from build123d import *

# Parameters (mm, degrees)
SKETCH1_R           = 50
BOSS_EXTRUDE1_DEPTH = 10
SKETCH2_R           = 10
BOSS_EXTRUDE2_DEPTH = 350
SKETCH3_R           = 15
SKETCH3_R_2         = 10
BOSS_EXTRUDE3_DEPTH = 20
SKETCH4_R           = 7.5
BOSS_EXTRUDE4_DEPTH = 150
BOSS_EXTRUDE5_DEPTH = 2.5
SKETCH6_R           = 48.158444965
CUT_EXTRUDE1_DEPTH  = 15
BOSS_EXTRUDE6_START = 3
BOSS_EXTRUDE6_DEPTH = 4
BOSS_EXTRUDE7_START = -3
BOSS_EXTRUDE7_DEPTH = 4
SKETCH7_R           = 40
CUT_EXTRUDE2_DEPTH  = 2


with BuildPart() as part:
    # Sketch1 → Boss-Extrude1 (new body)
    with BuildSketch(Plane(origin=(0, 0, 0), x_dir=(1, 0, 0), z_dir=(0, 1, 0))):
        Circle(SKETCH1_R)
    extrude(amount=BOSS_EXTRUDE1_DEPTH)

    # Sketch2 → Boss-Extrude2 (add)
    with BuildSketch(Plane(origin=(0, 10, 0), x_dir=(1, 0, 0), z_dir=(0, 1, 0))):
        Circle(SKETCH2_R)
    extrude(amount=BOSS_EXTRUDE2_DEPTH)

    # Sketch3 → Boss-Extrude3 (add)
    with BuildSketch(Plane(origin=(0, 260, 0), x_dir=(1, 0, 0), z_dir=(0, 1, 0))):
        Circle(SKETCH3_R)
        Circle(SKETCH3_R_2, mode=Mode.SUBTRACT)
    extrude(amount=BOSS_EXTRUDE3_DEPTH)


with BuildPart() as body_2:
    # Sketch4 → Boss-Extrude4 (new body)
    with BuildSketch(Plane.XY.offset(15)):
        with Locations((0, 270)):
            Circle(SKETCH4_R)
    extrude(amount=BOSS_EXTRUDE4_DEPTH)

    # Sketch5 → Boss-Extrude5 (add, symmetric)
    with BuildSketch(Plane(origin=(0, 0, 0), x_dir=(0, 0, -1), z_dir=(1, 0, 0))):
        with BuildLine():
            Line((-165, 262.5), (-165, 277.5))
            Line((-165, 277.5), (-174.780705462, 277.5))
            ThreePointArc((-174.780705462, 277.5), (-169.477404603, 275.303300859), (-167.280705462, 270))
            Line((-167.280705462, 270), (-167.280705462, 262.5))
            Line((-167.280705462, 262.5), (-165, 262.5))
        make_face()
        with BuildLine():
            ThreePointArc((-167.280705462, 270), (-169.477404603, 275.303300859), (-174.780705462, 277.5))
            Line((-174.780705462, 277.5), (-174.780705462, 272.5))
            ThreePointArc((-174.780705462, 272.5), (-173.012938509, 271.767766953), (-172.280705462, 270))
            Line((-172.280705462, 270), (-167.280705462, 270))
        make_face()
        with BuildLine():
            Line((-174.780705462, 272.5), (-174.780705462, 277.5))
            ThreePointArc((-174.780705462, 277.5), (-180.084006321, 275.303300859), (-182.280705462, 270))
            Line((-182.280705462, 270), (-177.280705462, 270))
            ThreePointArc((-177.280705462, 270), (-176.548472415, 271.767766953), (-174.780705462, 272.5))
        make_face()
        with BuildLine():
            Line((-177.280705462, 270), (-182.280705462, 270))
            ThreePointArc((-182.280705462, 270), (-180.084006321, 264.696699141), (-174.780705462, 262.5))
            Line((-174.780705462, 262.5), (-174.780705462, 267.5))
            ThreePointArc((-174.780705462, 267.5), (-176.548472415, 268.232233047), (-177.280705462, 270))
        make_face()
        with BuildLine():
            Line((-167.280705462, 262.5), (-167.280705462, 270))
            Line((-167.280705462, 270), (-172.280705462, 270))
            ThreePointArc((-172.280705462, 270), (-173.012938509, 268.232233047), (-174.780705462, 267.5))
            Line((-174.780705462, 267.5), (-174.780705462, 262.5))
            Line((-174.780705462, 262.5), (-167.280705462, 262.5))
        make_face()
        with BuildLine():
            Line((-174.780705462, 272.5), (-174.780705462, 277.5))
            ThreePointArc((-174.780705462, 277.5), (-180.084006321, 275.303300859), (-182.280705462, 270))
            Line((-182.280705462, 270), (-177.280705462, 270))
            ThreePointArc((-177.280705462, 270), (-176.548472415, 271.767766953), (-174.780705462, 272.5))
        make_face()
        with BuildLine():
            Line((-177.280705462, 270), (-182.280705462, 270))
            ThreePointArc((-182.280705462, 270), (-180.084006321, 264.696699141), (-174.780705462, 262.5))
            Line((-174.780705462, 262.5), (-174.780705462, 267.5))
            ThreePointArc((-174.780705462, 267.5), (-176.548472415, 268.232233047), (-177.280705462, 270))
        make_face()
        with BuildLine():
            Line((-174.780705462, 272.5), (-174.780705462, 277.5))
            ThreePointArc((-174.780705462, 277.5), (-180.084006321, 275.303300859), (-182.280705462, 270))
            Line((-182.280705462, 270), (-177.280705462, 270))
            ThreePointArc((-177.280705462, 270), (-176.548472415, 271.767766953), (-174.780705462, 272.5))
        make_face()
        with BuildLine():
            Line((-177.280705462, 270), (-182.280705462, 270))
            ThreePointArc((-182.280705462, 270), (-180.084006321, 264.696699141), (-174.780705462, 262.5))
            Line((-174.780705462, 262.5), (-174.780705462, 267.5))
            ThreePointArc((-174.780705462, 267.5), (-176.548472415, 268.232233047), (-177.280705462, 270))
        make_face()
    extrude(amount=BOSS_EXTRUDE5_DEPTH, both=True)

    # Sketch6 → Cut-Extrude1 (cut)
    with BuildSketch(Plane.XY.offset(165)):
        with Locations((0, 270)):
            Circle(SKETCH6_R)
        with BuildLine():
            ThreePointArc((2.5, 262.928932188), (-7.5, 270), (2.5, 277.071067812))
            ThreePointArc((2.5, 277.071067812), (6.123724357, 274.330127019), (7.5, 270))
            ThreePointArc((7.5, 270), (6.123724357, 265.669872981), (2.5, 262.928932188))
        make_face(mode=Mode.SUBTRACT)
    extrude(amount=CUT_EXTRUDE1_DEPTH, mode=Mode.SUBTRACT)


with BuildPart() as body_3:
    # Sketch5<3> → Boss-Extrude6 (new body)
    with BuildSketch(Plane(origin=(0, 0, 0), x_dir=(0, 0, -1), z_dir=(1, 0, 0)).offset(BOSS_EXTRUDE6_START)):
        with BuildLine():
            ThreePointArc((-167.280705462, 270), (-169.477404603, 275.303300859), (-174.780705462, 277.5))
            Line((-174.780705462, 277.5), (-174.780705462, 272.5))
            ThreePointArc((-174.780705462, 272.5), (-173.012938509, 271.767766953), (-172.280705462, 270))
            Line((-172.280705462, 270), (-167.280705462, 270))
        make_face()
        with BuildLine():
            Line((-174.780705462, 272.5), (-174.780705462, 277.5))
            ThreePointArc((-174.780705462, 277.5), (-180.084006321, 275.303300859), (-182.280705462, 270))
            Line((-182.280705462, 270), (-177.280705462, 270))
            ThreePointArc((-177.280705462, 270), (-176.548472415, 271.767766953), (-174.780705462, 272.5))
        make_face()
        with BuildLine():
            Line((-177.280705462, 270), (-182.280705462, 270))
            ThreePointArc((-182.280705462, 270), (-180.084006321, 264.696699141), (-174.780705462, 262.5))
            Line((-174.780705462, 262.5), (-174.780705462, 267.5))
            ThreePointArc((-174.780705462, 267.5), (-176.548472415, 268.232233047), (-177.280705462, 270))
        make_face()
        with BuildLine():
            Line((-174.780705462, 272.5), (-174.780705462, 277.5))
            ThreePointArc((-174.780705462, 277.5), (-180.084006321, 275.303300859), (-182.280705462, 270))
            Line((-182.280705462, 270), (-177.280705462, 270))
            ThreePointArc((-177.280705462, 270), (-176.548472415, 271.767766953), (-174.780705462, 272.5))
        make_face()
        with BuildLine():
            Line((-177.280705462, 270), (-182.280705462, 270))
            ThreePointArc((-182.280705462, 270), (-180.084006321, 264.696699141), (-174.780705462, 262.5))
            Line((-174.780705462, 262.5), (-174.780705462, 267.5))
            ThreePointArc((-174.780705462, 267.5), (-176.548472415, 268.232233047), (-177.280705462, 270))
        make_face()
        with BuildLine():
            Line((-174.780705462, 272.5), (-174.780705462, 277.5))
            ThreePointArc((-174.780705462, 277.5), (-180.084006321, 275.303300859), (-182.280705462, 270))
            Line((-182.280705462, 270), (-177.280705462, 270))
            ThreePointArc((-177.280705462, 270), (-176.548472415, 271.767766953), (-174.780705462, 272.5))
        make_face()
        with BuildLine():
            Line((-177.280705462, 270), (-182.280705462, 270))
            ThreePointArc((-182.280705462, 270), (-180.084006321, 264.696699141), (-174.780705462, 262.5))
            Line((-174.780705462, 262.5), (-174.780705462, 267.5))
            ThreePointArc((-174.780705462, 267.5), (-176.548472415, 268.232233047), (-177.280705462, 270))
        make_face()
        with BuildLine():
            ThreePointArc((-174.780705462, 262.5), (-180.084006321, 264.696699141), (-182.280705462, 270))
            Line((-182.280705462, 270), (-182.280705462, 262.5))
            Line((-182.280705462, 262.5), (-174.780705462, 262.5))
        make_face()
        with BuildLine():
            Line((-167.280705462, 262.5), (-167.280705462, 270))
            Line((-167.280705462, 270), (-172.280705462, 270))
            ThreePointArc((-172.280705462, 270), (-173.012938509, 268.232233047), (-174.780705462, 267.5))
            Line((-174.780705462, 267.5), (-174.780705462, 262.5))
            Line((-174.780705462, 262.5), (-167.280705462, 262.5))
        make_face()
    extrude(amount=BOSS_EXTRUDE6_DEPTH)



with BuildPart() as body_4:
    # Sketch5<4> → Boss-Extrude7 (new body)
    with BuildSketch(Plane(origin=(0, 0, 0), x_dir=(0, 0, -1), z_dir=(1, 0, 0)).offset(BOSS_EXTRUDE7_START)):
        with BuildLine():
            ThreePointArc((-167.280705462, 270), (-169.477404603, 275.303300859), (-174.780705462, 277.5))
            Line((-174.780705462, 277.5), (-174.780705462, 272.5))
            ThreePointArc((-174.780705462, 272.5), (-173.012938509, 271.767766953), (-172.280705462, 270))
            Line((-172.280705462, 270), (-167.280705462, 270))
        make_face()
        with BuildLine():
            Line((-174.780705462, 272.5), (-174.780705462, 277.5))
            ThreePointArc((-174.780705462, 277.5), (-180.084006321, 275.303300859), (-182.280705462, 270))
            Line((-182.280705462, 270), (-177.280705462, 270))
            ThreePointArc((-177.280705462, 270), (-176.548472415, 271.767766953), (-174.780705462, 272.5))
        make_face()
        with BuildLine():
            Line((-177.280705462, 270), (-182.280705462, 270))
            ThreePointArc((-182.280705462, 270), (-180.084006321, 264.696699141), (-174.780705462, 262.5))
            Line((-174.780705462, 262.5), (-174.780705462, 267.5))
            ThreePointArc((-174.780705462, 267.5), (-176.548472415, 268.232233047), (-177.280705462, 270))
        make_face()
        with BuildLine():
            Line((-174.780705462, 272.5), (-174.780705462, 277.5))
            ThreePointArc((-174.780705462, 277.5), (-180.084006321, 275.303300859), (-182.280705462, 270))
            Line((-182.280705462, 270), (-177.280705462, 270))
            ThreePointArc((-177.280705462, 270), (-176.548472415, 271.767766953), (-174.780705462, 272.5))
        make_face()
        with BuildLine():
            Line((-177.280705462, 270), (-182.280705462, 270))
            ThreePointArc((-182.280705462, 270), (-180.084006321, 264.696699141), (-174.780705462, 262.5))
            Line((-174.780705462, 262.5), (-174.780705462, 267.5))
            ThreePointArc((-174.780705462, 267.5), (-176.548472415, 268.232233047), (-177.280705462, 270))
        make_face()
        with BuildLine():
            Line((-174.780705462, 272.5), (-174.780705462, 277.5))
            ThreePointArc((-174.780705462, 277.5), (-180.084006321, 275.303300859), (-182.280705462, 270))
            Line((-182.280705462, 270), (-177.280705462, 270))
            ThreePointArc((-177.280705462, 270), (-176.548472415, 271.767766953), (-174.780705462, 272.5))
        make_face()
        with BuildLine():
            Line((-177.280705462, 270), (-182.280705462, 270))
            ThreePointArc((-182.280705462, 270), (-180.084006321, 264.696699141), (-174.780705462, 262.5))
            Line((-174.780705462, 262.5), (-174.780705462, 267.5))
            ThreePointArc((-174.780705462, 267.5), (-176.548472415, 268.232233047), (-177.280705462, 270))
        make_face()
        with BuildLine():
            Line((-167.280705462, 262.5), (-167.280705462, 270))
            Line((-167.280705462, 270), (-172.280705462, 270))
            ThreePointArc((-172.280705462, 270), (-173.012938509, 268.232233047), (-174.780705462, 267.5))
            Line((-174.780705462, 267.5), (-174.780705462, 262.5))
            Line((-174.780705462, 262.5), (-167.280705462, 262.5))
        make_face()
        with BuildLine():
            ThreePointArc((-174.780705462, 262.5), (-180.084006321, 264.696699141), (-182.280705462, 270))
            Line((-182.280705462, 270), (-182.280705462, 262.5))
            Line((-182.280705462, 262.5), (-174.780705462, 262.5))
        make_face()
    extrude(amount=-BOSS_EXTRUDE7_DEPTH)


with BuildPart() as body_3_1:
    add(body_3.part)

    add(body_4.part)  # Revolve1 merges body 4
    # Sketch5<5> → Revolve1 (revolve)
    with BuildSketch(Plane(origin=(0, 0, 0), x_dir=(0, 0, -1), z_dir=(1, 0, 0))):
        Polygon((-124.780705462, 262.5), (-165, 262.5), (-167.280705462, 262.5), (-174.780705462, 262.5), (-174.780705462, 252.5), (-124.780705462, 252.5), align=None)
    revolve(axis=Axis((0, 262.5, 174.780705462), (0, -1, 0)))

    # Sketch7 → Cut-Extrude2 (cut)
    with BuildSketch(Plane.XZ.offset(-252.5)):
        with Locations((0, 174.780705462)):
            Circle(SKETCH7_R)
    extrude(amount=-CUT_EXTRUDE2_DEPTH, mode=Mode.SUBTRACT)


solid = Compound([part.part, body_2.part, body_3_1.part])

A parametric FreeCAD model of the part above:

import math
import FreeCAD as App
import Part
import Sketcher

V = App.Vector
Q = App.Units.Quantity

doc = App.newDocument("Part")
params = doc.addObject("Spreadsheet::Sheet", "Params")
for row, (alias, value) in enumerate([
    ("sketch1_diameter", "100 mm"),
    ("pad1_length", "10 mm"),
    ("sketch2_diameter", "20 mm"),
    ("pad2_length", "350 mm"),
    ("sketch3_diameter", "30 mm"),
    ("sketch3_diameter2", "20 mm"),
    ("pad3_length", "20 mm"),
    ("sketch4_diameter", "15 mm"),
    ("pad4_length", "150 mm"),
    ("sketch5_radius", "7.5 mm"),
    ("sketch5_radius2", "2.5 mm"),
    ("pad5_length", "5 mm"),
    ("sketch6_radius", "7.5 mm"),
    ("pocket1_length", "15 mm"),
    ("sketch7_radius", "7.5 mm"),
    ("sketch7_radius2", "2.5 mm"),
    ("sketch7_width", "7.5 mm"),
    ("pad6_length", "4 mm"),
    ("sketch8_radius", "7.5 mm"),
    ("sketch8_radius2", "2.5 mm"),
    ("sketch8_width", "7.5 mm"),
    ("pad7_length", "4 mm"),
    ("sketch9_width", "10 mm"),
    ("sketch9_height", "50 mm"),
    ("revolution_angle", "360 deg"),
    ("sketch10_diameter", "80 mm"),
    ("pocket2_length", "2 mm"),
], start=1):
    params.set(f"A{row}", alias)
    params.set(f"B{row}", "=" + value)
    params.setAlias(f"B{row}", alias)

body = doc.addObject("PartDesign::Body", "Body")

sketch1 = doc.addObject("Sketcher::SketchObject", "Sketch")
body.addObject(sketch1)
sketch1.AttachmentSupport = (doc.XZ_Plane, [""])
sketch1.MapMode = "FlatFace"
sketch1.addGeometry(Part.Circle(V(0, 0, 0), V(0, 0, 1), 50), False)
sketch1.addConstraint(Sketcher.Constraint("Coincident", 0, 3, -1, 1))
sketch1.addConstraint(Sketcher.Constraint("Diameter", 0, Q("100 mm")))
sketch1.setExpression("Constraints[1]", "Params.sketch1_diameter")
pad1 = doc.addObject("PartDesign::Pad", "Pad")
body.addObject(pad1)
pad1.Profile = sketch1
pad1.setExpression("Length", "Params.pad1_length")
pad1.Reversed = True

sketch2 = doc.addObject("Sketcher::SketchObject", "Sketch001")
body.addObject(sketch2)
sketch2.AttachmentSupport = (doc.XZ_Plane, [""])
sketch2.MapMode = "FlatFace"
sketch2.AttachmentOffset = App.Placement(V(0, 0, -10), App.Rotation())
sketch2.addGeometry(Part.Circle(V(0, 0, 0), V(0, 0, 1), 10), False)
sketch2.addConstraint(Sketcher.Constraint("Coincident", 0, 3, -1, 1))
sketch2.addConstraint(Sketcher.Constraint("Diameter", 0, Q("20 mm")))
sketch2.setExpression("Constraints[1]", "Params.sketch2_diameter")
pad2 = doc.addObject("PartDesign::Pad", "Pad001")
body.addObject(pad2)
pad2.Profile = sketch2
pad2.setExpression("Length", "Params.pad2_length")
pad2.Reversed = True

sketch3 = doc.addObject("Sketcher::SketchObject", "Sketch002")
body.addObject(sketch3)
sketch3.AttachmentSupport = (doc.XZ_Plane, [""])
sketch3.MapMode = "FlatFace"
sketch3.AttachmentOffset = App.Placement(V(0, 0, -260), App.Rotation())
sketch3.addGeometry(Part.Circle(V(0, 0, 0), V(0, 0, 1), 15), False)
sketch3.addGeometry(Part.Circle(V(0, 0, 0), V(0, 0, 1), 10), False)
sketch3.addConstraint(Sketcher.Constraint("Coincident", 0, 3, -1, 1))
sketch3.addConstraint(Sketcher.Constraint("Coincident", 1, 3, -1, 1))
sketch3.addConstraint(Sketcher.Constraint("Diameter", 0, Q("30 mm")))
sketch3.addConstraint(Sketcher.Constraint("Diameter", 1, Q("20 mm")))
sketch3.setExpression("Constraints[2]", "Params.sketch3_diameter")
sketch3.setExpression("Constraints[3]", "Params.sketch3_diameter2")
pad3 = doc.addObject("PartDesign::Pad", "Pad002")
body.addObject(pad3)
pad3.Profile = sketch3
pad3.setExpression("Length", "Params.pad3_length")
pad3.Reversed = True
body2 = doc.addObject("PartDesign::Body", "Body001")

sketch4 = doc.addObject("Sketcher::SketchObject", "Sketch003")
body2.addObject(sketch4)
sketch4.AttachmentSupport = (doc.getObject("XY_Plane001"), [""])
sketch4.MapMode = "FlatFace"
sketch4.AttachmentOffset = App.Placement(V(0, 0, 15), App.Rotation())
sketch4.addGeometry(Part.Circle(V(0, 270, 0), V(0, 0, 1), 8), False)
sketch4.addConstraint(Sketcher.Constraint("PointOnObject", 0, 3, -2))
sketch4.addConstraint(Sketcher.Constraint("Diameter", 0, Q("15 mm")))
sketch4.addConstraint(Sketcher.Constraint("DistanceY", -1, 1, 0, 3, Q("270 mm")))
sketch4.setExpression("Constraints[1]", "Params.sketch4_diameter")
pad4 = doc.addObject("PartDesign::Pad", "Pad003")
body2.addObject(pad4)
pad4.Profile = sketch4
pad4.setExpression("Length", "Params.pad4_length")

sketch5 = doc.addObject("Sketcher::SketchObject", "Sketch004")
body2.addObject(sketch5)
sketch5.AttachmentSupport = (doc.getObject("YZ_Plane001"), [""])
sketch5.MapMode = "FlatFace"
sketch5.addGeometry(Part.ArcOfCircle(Part.Circle(V(270, 174.8, 0), V(0, 0, 1), 7.5), math.radians(0), math.radians(90)), False)
sketch5.addGeometry(Part.ArcOfCircle(Part.Circle(V(270, 174.8, 0), V(0, 0, 1), 7.5), math.radians(90), math.radians(180)), False)
sketch5.addGeometry(Part.LineSegment(V(262.5, 174.8, 0), V(262.5, 165, 0)), False)
sketch5.addGeometry(Part.LineSegment(V(262.5, 165, 0), V(277.5, 165, 0)), False)
sketch5.addGeometry(Part.LineSegment(V(277.5, 165, 0), V(277.5, 174.8, 0)), False)
sketch5.addGeometry(Part.ArcOfCircle(Part.Circle(V(270, 174.8, 0), V(0, 0, 1), 2.5), math.radians(0), math.radians(90)), False)
sketch5.addGeometry(Part.ArcOfCircle(Part.Circle(V(270, 174.8, 0), V(0, 0, 1), 2.5), math.radians(-90), math.radians(0)), False)
sketch5.addGeometry(Part.ArcOfCircle(Part.Circle(V(270, 174.8, 0), V(0, 0, 1), 2.5), math.radians(180), math.radians(270)), False)
sketch5.addGeometry(Part.ArcOfCircle(Part.Circle(V(270, 174.8, 0), V(0, 0, 1), 2.5), math.radians(90), math.radians(180)), False)
sketch5.addConstraint(Sketcher.Constraint("Tangent", 0, 2, 1, 1))
sketch5.addConstraint(Sketcher.Constraint("Tangent", 1, 2, 2, 1))
sketch5.addConstraint(Sketcher.Constraint("Coincident", 2, 2, 3, 1))
sketch5.addConstraint(Sketcher.Constraint("Coincident", 3, 2, 4, 1))
sketch5.addConstraint(Sketcher.Constraint("Tangent", 4, 2, 0, 1))
sketch5.addConstraint(Sketcher.Constraint("Tangent", 5, 1, 6, 2))
sketch5.addConstraint(Sketcher.Constraint("Tangent", 6, 1, 7, 2))
sketch5.addConstraint(Sketcher.Constraint("Tangent", 7, 1, 8, 2))
sketch5.addConstraint(Sketcher.Constraint("Tangent", 8, 1, 5, 2))
sketch5.addConstraint(Sketcher.Constraint("Vertical", 2))
sketch5.addConstraint(Sketcher.Constraint("Horizontal", 3))
sketch5.addConstraint(Sketcher.Constraint("Vertical", 4))
sketch5.addConstraint(Sketcher.Constraint("Coincident", 5, 3, 0, 3))
sketch5.addConstraint(Sketcher.Constraint("Equal", 0, 1))
sketch5.addConstraint(Sketcher.Constraint("Equal", 5, 6))
sketch5.addConstraint(Sketcher.Constraint("Horizontal", 4, 2, 5, 1))
sketch5.addConstraint(Sketcher.Constraint("Horizontal", 5, 1, 7, 1))
sketch5.addConstraint(Sketcher.Constraint("Vertical", 8, 3, 0, 2))
sketch5.addConstraint(Sketcher.Constraint("Vertical", 0, 2, 6, 1))
sketch5.addConstraint(Sketcher.Constraint("Vertical", 6, 1, 8, 1))
sketch5.addConstraint(Sketcher.Constraint("Radius", 0, Q("7.5 mm")))
sketch5.addConstraint(Sketcher.Constraint("Radius", 5, Q("2.5 mm")))
sketch5.addConstraint(Sketcher.Constraint("DistanceX", -1, 1, 0, 3, Q("270 mm")))
sketch5.addConstraint(Sketcher.Constraint("DistanceY", -1, 1, 2, 2, Q("165 mm")))
sketch5.addConstraint(Sketcher.Constraint("DistanceY", 2, 2, 2, 1, Q("9.780705 mm")))
sketch5.setExpression("Constraints[20]", "Params.sketch5_radius")
sketch5.setExpression("Constraints[21]", "Params.sketch5_radius2")
pad5 = doc.addObject("PartDesign::Pad", "Pad004")
body2.addObject(pad5)
pad5.Profile = sketch5
pad5.setExpression("Length", "Params.pad5_length")
pad5.Midplane = True

sketch6 = doc.addObject("Sketcher::SketchObject", "Sketch005")
body2.addObject(sketch6)
sketch6.AttachmentSupport = (doc.getObject("XY_Plane001"), [""])
sketch6.MapMode = "FlatFace"
sketch6.AttachmentOffset = App.Placement(V(0, 0, 165), App.Rotation())
sketch6.addGeometry(Part.Circle(V(0, 270, 0), V(0, 0, 1), 48), False)
sketch6.addGeometry(Part.ArcOfCircle(Part.Circle(V(0, 270, 0), V(0, 0, 1), 8), math.radians(-71), math.radians(0)), False)
sketch6.addGeometry(Part.ArcOfCircle(Part.Circle(V(0, 270, 0), V(0, 0, 1), 8), math.radians(71), math.radians(289)), False)
sketch6.addGeometry(Part.ArcOfCircle(Part.Circle(V(0, 270, 0), V(0, 0, 1), 8), math.radians(0), math.radians(71)), False)
sketch6.addConstraint(Sketcher.Constraint("Tangent", 1, 1, 2, 2))
sketch6.addConstraint(Sketcher.Constraint("Tangent", 2, 1, 3, 2))
sketch6.addConstraint(Sketcher.Constraint("Tangent", 3, 1, 1, 2))
sketch6.addConstraint(Sketcher.Constraint("Coincident", 1, 3, 0, 3))
sketch6.addConstraint(Sketcher.Constraint("PointOnObject", 0, 3, -2))
sketch6.addConstraint(Sketcher.Constraint("Horizontal", 2, 3, 3, 1))
sketch6.addConstraint(Sketcher.Constraint("Vertical", 1, 1, 2, 1))
sketch6.addConstraint(Sketcher.Constraint("Radius", 1, Q("7.5 mm")))
sketch6.addConstraint(Sketcher.Constraint("DistanceY", -1, 1, 0, 3, Q("270 mm")))
sketch6.addConstraint(Sketcher.Constraint("DistanceX", 1, 1, 3, 1, Q("5 mm")))
sketch6.addConstraint(Sketcher.Constraint("Diameter", 0, Q("96.31689 mm")))
sketch6.setExpression("Constraints[7]", "Params.sketch6_radius")
pocket1 = doc.addObject("PartDesign::Pocket", "Pocket")
body2.addObject(pocket1)
pocket1.Profile = sketch6
pocket1.setExpression("Length", "Params.pocket1_length")
pocket1.Reversed = True
body3 = doc.addObject("PartDesign::Body", "Body002")

sketch7 = doc.addObject("Sketcher::SketchObject", "Sketch006")
body3.addObject(sketch7)
sketch7.AttachmentSupport = (doc.getObject("YZ_Plane002"), [""])
sketch7.MapMode = "FlatFace"
sketch7.AttachmentOffset = App.Placement(V(0, 0, 3), App.Rotation())
sketch7.addGeometry(Part.ArcOfCircle(Part.Circle(V(270, 174.8, 0), V(0, 0, 1), 7.5), math.radians(-90), math.radians(0)), False)
sketch7.addGeometry(Part.ArcOfCircle(Part.Circle(V(270, 174.8, 0), V(0, 0, 1), 7.5), math.radians(0), math.radians(90)), False)
sketch7.addGeometry(Part.LineSegment(V(270, 182.3, 0), V(262.5, 182.3, 0)), False)
sketch7.addGeometry(Part.LineSegment(V(262.5, 182.3, 0), V(262.5, 167.3, 0)), False)
sketch7.addGeometry(Part.LineSegment(V(262.5, 167.3, 0), V(270, 167.3, 0)), False)
sketch7.addGeometry(Part.ArcOfCircle(Part.Circle(V(270, 174.8, 0), V(0, 0, 1), 2.5), math.radians(90), math.radians(180)), False)
sketch7.addGeometry(Part.ArcOfCircle(Part.Circle(V(270, 174.8, 0), V(0, 0, 1), 2.5), math.radians(0), math.radians(90)), False)
sketch7.addGeometry(Part.ArcOfCircle(Part.Circle(V(270, 174.8, 0), V(0, 0, 1), 2.5), math.radians(-90), math.radians(0)), False)
sketch7.addGeometry(Part.ArcOfCircle(Part.Circle(V(270, 174.8, 0), V(0, 0, 1), 2.5), math.radians(180), math.radians(270)), False)
sketch7.addConstraint(Sketcher.Constraint("Tangent", 0, 2, 1, 1))
sketch7.addConstraint(Sketcher.Constraint("Tangent", 1, 2, 2, 1))
sketch7.addConstraint(Sketcher.Constraint("Coincident", 2, 2, 3, 1))
sketch7.addConstraint(Sketcher.Constraint("Coincident", 3, 2, 4, 1))
sketch7.addConstraint(Sketcher.Constraint("Tangent", 4, 2, 0, 1))
sketch7.addConstraint(Sketcher.Constraint("Tangent", 5, 1, 6, 2))
sketch7.addConstraint(Sketcher.Constraint("Tangent", 6, 1, 7, 2))
sketch7.addConstraint(Sketcher.Constraint("Tangent", 7, 1, 8, 2))
sketch7.addConstraint(Sketcher.Constraint("Tangent", 8, 1, 5, 2))
sketch7.addConstraint(Sketcher.Constraint("Horizontal", 2))
sketch7.addConstraint(Sketcher.Constraint("Vertical", 3))
sketch7.addConstraint(Sketcher.Constraint("Horizontal", 4))
sketch7.addConstraint(Sketcher.Constraint("Coincident", 5, 3, 0, 3))
sketch7.addConstraint(Sketcher.Constraint("Equal", 0, 1))
sketch7.addConstraint(Sketcher.Constraint("Equal", 5, 6))
sketch7.addConstraint(Sketcher.Constraint("Horizontal", 8, 3, 0, 2))
sketch7.addConstraint(Sketcher.Constraint("Horizontal", 0, 2, 6, 1))
sketch7.addConstraint(Sketcher.Constraint("Horizontal", 6, 1, 8, 1))
sketch7.addConstraint(Sketcher.Constraint("Vertical", 4, 2, 5, 1))
sketch7.addConstraint(Sketcher.Constraint("Vertical", 5, 1, 7, 1))
sketch7.addConstraint(Sketcher.Constraint("Radius", 0, Q("7.5 mm")))
sketch7.addConstraint(Sketcher.Constraint("Radius", 5, Q("2.5 mm")))
sketch7.addConstraint(Sketcher.Constraint("DistanceX", 2, 2, 2, 1, Q("7.5 mm")))
sketch7.addConstraint(Sketcher.Constraint("DistanceX", -1, 1, 0, 3, Q("270 mm")))
sketch7.addConstraint(Sketcher.Constraint("DistanceY", -1, 1, 0, 3, Q("174.780705 mm")))
sketch7.setExpression("Constraints[20]", "Params.sketch7_radius")
sketch7.setExpression("Constraints[21]", "Params.sketch7_radius2")
sketch7.setExpression("Constraints[22]", "Params.sketch7_width")
pad6 = doc.addObject("PartDesign::Pad", "Pad005")
body3.addObject(pad6)
pad6.Profile = sketch7
pad6.setExpression("Length", "Params.pad6_length")
body4 = doc.addObject("PartDesign::Body", "Body003")

sketch8 = doc.addObject("Sketcher::SketchObject", "Sketch007")
body4.addObject(sketch8)
sketch8.AttachmentSupport = (doc.getObject("YZ_Plane003"), [""])
sketch8.MapMode = "FlatFace"
sketch8.AttachmentOffset = App.Placement(V(0, 0, -3), App.Rotation())
sketch8.addGeometry(Part.ArcOfCircle(Part.Circle(V(270, 174.8, 0), V(0, 0, 1), 7.5), math.radians(-90), math.radians(0)), False)
sketch8.addGeometry(Part.ArcOfCircle(Part.Circle(V(270, 174.8, 0), V(0, 0, 1), 7.5), math.radians(0), math.radians(90)), False)
sketch8.addGeometry(Part.LineSegment(V(270, 182.3, 0), V(262.5, 182.3, 0)), False)
sketch8.addGeometry(Part.LineSegment(V(262.5, 182.3, 0), V(262.5, 167.3, 0)), False)
sketch8.addGeometry(Part.LineSegment(V(262.5, 167.3, 0), V(270, 167.3, 0)), False)
sketch8.addGeometry(Part.ArcOfCircle(Part.Circle(V(270, 174.8, 0), V(0, 0, 1), 2.5), math.radians(90), math.radians(180)), False)
sketch8.addGeometry(Part.ArcOfCircle(Part.Circle(V(270, 174.8, 0), V(0, 0, 1), 2.5), math.radians(0), math.radians(90)), False)
sketch8.addGeometry(Part.ArcOfCircle(Part.Circle(V(270, 174.8, 0), V(0, 0, 1), 2.5), math.radians(-90), math.radians(0)), False)
sketch8.addGeometry(Part.ArcOfCircle(Part.Circle(V(270, 174.8, 0), V(0, 0, 1), 2.5), math.radians(180), math.radians(270)), False)
sketch8.addConstraint(Sketcher.Constraint("Tangent", 0, 2, 1, 1))
sketch8.addConstraint(Sketcher.Constraint("Tangent", 1, 2, 2, 1))
sketch8.addConstraint(Sketcher.Constraint("Coincident", 2, 2, 3, 1))
sketch8.addConstraint(Sketcher.Constraint("Coincident", 3, 2, 4, 1))
sketch8.addConstraint(Sketcher.Constraint("Tangent", 4, 2, 0, 1))
sketch8.addConstraint(Sketcher.Constraint("Tangent", 5, 1, 6, 2))
sketch8.addConstraint(Sketcher.Constraint("Tangent", 6, 1, 7, 2))
sketch8.addConstraint(Sketcher.Constraint("Tangent", 7, 1, 8, 2))
sketch8.addConstraint(Sketcher.Constraint("Tangent", 8, 1, 5, 2))
sketch8.addConstraint(Sketcher.Constraint("Horizontal", 2))
sketch8.addConstraint(Sketcher.Constraint("Vertical", 3))
sketch8.addConstraint(Sketcher.Constraint("Horizontal", 4))
sketch8.addConstraint(Sketcher.Constraint("Coincident", 5, 3, 0, 3))
sketch8.addConstraint(Sketcher.Constraint("Equal", 0, 1))
sketch8.addConstraint(Sketcher.Constraint("Equal", 5, 6))
sketch8.addConstraint(Sketcher.Constraint("Horizontal", 8, 3, 0, 2))
sketch8.addConstraint(Sketcher.Constraint("Horizontal", 0, 2, 6, 1))
sketch8.addConstraint(Sketcher.Constraint("Horizontal", 6, 1, 8, 1))
sketch8.addConstraint(Sketcher.Constraint("Vertical", 4, 2, 5, 1))
sketch8.addConstraint(Sketcher.Constraint("Vertical", 5, 1, 7, 1))
sketch8.addConstraint(Sketcher.Constraint("Radius", 0, Q("7.5 mm")))
sketch8.addConstraint(Sketcher.Constraint("Radius", 5, Q("2.5 mm")))
sketch8.addConstraint(Sketcher.Constraint("DistanceX", 2, 2, 2, 1, Q("7.5 mm")))
sketch8.addConstraint(Sketcher.Constraint("DistanceX", -1, 1, 0, 3, Q("270 mm")))
sketch8.addConstraint(Sketcher.Constraint("DistanceY", -1, 1, 0, 3, Q("174.780705 mm")))
sketch8.setExpression("Constraints[20]", "Params.sketch8_radius")
sketch8.setExpression("Constraints[21]", "Params.sketch8_radius2")
sketch8.setExpression("Constraints[22]", "Params.sketch8_width")
pad7 = doc.addObject("PartDesign::Pad", "Pad006")
body4.addObject(pad7)
pad7.Profile = sketch8
pad7.setExpression("Length", "Params.pad7_length")
pad7.Reversed = True
body3.AllowCompound = True
doc.recompute()

boolean = doc.addObject("PartDesign::Boolean", "Boolean")
body3.addObject(boolean)
boolean.Type = "Fuse"
boolean.addObjects([body4])

sketch9 = doc.addObject("Sketcher::SketchObject", "Sketch008")
body3.addObject(sketch9)
sketch9.AttachmentSupport = (doc.getObject("YZ_Plane002"), [""])
sketch9.MapMode = "FlatFace"
sketch9.addGeometry(Part.LineSegment(V(262, 125, 0), V(262, 175, 0)), False)
sketch9.addGeometry(Part.LineSegment(V(262, 175, 0), V(252, 175, 0)), False)
sketch9.addGeometry(Part.LineSegment(V(252, 175, 0), V(252, 125, 0)), False)
sketch9.addGeometry(Part.LineSegment(V(252, 125, 0), V(262, 125, 0)), False)
sketch9.addGeometry(Part.LineSegment(V(262, 175, 0), V(252, 175, 0)), True)
sketch9.addConstraint(Sketcher.Constraint("Coincident", 0, 2, 1, 1))
sketch9.addConstraint(Sketcher.Constraint("Coincident", 1, 2, 2, 1))
sketch9.addConstraint(Sketcher.Constraint("Coincident", 2, 2, 3, 1))
sketch9.addConstraint(Sketcher.Constraint("Coincident", 3, 2, 0, 1))
sketch9.addConstraint(Sketcher.Constraint("Vertical", 0))
sketch9.addConstraint(Sketcher.Constraint("Horizontal", 1))
sketch9.addConstraint(Sketcher.Constraint("Vertical", 2))
sketch9.addConstraint(Sketcher.Constraint("Horizontal", 3))
sketch9.addConstraint(Sketcher.Constraint("Horizontal", 4))
sketch9.addConstraint(Sketcher.Constraint("Coincident", 4, 1, 0, 2))
sketch9.addConstraint(Sketcher.Constraint("Vertical", 2, 2, 4, 2))
sketch9.addConstraint(Sketcher.Constraint("DistanceX", 1, 2, 1, 1, Q("10 mm")))
sketch9.addConstraint(Sketcher.Constraint("DistanceY", 0, 1, 0, 2, Q("50 mm")))
sketch9.addConstraint(Sketcher.Constraint("DistanceX", -1, 1, 0, 2, Q("262.5 mm")))
sketch9.addConstraint(Sketcher.Constraint("DistanceY", -1, 1, 0, 2, Q("174.780705 mm")))
sketch9.setExpression("Constraints[11]", "Params.sketch9_width")
sketch9.setExpression("Constraints[12]", "Params.sketch9_height")
revolution = doc.addObject("PartDesign::Revolution", "Revolution")
body3.addObject(revolution)
revolution.Profile = sketch9
revolution.ReferenceAxis = (sketch9, ["Axis0"])
revolution.setExpression("Angle", "Params.revolution_angle")

sketch10 = doc.addObject("Sketcher::SketchObject", "Sketch009")
body3.addObject(sketch10)
sketch10.AttachmentSupport = (doc.getObject("XZ_Plane002"), [""])
sketch10.MapMode = "FlatFace"
sketch10.AttachmentOffset = App.Placement(V(0, 0, -252.5), App.Rotation())
sketch10.addGeometry(Part.Circle(V(0, 175, 0), V(0, 0, 1), 40), False)
sketch10.addConstraint(Sketcher.Constraint("PointOnObject", 0, 3, -2))
sketch10.addConstraint(Sketcher.Constraint("Diameter", 0, Q("80 mm")))
sketch10.addConstraint(Sketcher.Constraint("DistanceY", -1, 1, 0, 3, Q("174.780705 mm")))
sketch10.setExpression("Constraints[1]", "Params.sketch10_diameter")
pocket2 = doc.addObject("PartDesign::Pocket", "Pocket001")
body3.addObject(pocket2)
pocket2.Profile = sketch10
pocket2.setExpression("Length", "Params.pocket2_length")

doc.recompute()
